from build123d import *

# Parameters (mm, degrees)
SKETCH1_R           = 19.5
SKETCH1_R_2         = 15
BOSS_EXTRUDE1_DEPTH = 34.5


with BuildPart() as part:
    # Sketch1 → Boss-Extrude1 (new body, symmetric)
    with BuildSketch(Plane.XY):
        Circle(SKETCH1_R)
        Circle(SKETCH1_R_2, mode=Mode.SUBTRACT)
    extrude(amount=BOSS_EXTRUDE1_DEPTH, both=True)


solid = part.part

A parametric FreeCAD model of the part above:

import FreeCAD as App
import Part
import Sketcher

V = App.Vector
Q = App.Units.Quantity

doc = App.newDocument("Part")
body = doc.addObject("PartDesign::Body", "Body")

# Sketch on XY plane
sketch1 = body.newObject("Sketcher::SketchObject", "Sketch")
sketch1.AttachmentSupport = (doc.getObject("XY_Plane"), [""])
sketch1.MapMode = "FlatFace"
sketch1.addGeometry([
    Part.Circle(V(0, 0, 0), V(0, 0, 1), 20),
    Part.Circle(V(0, 0, 0), V(0, 0, 1), 15),
], False)
sketch1.addConstraint([
    Sketcher.Constraint("Coincident", 0, 3, -1, 1),
    Sketcher.Constraint("Coincident", 1, 3, -1, 1),
    Sketcher.Constraint("Diameter", 0, Q("39 mm")),
    Sketcher.Constraint("Diameter", 1, Q("30 mm")),
])
pad1 = body.newObject("PartDesign::Pad", "Pad")
pad1.Profile = sketch1
pad1.Length = 69
pad1.Midplane = True

doc.recompute()
